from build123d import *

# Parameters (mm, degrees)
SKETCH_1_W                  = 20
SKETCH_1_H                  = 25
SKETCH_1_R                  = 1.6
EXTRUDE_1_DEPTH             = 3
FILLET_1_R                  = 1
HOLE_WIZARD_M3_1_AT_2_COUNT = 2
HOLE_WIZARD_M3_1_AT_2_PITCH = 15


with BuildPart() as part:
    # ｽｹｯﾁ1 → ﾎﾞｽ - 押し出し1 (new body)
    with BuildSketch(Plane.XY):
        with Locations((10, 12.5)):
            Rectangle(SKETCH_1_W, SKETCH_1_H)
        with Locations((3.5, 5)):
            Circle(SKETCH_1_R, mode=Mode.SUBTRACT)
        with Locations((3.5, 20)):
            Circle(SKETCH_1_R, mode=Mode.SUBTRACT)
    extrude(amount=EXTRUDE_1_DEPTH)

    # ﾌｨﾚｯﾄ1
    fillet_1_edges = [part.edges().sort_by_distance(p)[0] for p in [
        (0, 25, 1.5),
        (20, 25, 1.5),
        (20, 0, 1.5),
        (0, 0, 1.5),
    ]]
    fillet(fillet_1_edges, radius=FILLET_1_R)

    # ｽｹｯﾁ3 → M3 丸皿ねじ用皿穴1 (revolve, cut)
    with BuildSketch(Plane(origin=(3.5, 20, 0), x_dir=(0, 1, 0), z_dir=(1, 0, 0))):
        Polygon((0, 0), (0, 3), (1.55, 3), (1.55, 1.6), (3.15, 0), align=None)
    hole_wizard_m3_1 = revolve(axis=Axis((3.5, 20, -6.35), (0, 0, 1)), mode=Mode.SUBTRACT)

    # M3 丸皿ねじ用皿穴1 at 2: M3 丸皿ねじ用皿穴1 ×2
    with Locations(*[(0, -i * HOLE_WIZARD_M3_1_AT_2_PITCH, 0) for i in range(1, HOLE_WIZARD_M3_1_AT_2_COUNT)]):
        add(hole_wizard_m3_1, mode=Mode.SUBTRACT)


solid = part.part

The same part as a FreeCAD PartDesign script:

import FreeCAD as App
import Part
import Sketcher

V = App.Vector
Q = App.Units.Quantity


def edges_at(feature, points):
    """Names of the edges that pass closest to the given points."""
    edges = feature.Shape.Edges
    near = lambda p: min(range(len(edges)), key=lambda i: edges[i].distToShape(Part.Vertex(*p))[0])
    return sorted({f"Edge{near(p) + 1}" for p in points})

doc = App.newDocument("Part")
params = doc.addObject("Spreadsheet::Sheet", "Params")
for row, (alias, value) in enumerate([
    ("sketch1_diameter", "3.2 mm"),
    ("sketch1_width", "20 mm"),
    ("sketch1_height", "25 mm"),
    ("pad1_length", "3 mm"),
    ("fillet_radius", "1 mm"),
    ("sketch2_height", "3 mm"),
    ("sketch2_height2", "1.4 mm"),
    ("sketch2_width", "3.15 mm"),
    ("groove_angle", "360 deg"),
    ("linearpattern_pitch", "15 mm"),
], start=1):
    params.set(f"A{row}", alias)
    params.set(f"B{row}", "=" + value)
    params.setAlias(f"B{row}", alias)

body = doc.addObject("PartDesign::Body", "Body")

# Sketch on XY plane
sketch1 = doc.addObject("Sketcher::SketchObject", "Sketch")
body.addObject(sketch1)
sketch1.AttachmentSupport = (doc.XY_Plane, [""])
sketch1.MapMode = "FlatFace"
sketch1.addGeometry(Part.LineSegment(V(0, 25, 0), V(0, 0, 0)), False)
sketch1.addGeometry(Part.LineSegment(V(0, 0, 0), V(20, 0, 0)), False)
sketch1.addGeometry(Part.LineSegment(V(20, 0, 0), V(20, 25, 0)), False)
sketch1.addGeometry(Part.LineSegment(V(20, 25, 0), V(0, 25, 0)), False)
sketch1.addGeometry(Part.Circle(V(3.5, 5, 0), V(0, 0, 1), 1.6), False)
sketch1.addGeometry(Part.Circle(V(3.5, 20, 0), V(0, 0, 1), 1.6), False)
sketch1.addConstraint(Sketcher.Constraint("Coincident", 0, 2, 1, 1))
sketch1.addConstraint(Sketcher.Constraint("Coincident", 1, 2, 2, 1))
sketch1.addConstraint(Sketcher.Constraint("Coincident", 2, 2, 3, 1))
sketch1.addConstraint(Sketcher.Constraint("Coincident", 3, 2, 0, 1))
sketch1.addConstraint(Sketcher.Constraint("Vertical", 0))
sketch1.addConstraint(Sketcher.Constraint("Horizontal", 1))
sketch1.addConstraint(Sketcher.Constraint("Vertical", 2))
sketch1.addConstraint(Sketcher.Constraint("Horizontal", 3))
sketch1.addConstraint(Sketcher.Constraint("Coincident", 0, 2, -1, 1))
sketch1.addConstraint(Sketcher.Constraint("Equal", 4, 5))
sketch1.addConstraint(Sketcher.Constraint("Vertical", 4, 3, 5, 3))
sketch1.addConstraint(Sketcher.Constraint("Diameter", 4, Q("3.2 mm")))
sketch1.addConstraint(Sketcher.Constraint("DistanceX", 1, 1, 1, 2, Q("20 mm")))
sketch1.addConstraint(Sketcher.Constraint("DistanceY", 0, 2, 0, 1, Q("25 mm")))
sketch1.addConstraint(Sketcher.Constraint("DistanceY", -1, 1, 4, 3, Q("5 mm")))
sketch1.addConstraint(Sketcher.Constraint("DistanceY", -1, 1, 5, 3, Q("20 mm")))
sketch1.addConstraint(Sketcher.Constraint("DistanceX", -1, 1, 4, 3, Q("3.5 mm")))
sketch1.setExpression("Constraints[11]", "Params.sketch1_diameter")
sketch1.setExpression("Constraints[12]", "Params.sketch1_width")
sketch1.setExpression("Constraints[13]", "Params.sketch1_height")
pad1 = doc.addObject("PartDesign::Pad", "Pad")
body.addObject(pad1)
pad1.Profile = sketch1
pad1.setExpression("Length", "Params.pad1_length")
doc.recompute()

fillet = doc.addObject("PartDesign::Fillet", "Fillet")
body.addObject(fillet)
fillet.Base = (pad1, edges_at(pad1, [
    (0, 25, 1.5),
    (20, 25, 1.5),
    (20, 0, 1.5),
    (0, 0, 1.5),
]))
fillet.setExpression("Radius", "Params.fillet_radius")

# Sketch on YZ plane
sketch2 = doc.addObject("Sketcher::SketchObject", "Sketch001")
body.addObject(sketch2)
sketch2.AttachmentSupport = (doc.YZ_Plane, [""])
sketch2.MapMode = "FlatFace"
sketch2.AttachmentOffset = App.Placement(V(0, 0, 3.5), App.Rotation())
sketch2.addGeometry(Part.LineSegment(V(20, 3, 0), V(20, 0, 0)), False)
sketch2.addGeometry(Part.LineSegment(V(20, 0, 0), V(23.1, 0, 0)), False)
sketch2.addGeometry(Part.LineSegment(V(23.1, 0, 0), V(21.6, 1.6, 0)), False)
sketch2.addGeometry(Part.LineSegment(V(21.6, 1.6, 0), V(21.6, 3, 0)), False)
sketch2.addGeometry(Part.LineSegment(V(21.6, 3, 0), V(20, 3, 0)), False)
sketch2.addGeometry(Part.LineSegment(V(20, 0, 0), V(20, 3, 0)), True)  # axis
sketch2.addConstraint(Sketcher.Constraint("Coincident", 0, 2, 1, 1))
sketch2.addConstraint(Sketcher.Constraint("Coincident", 1, 2, 2, 1))
sketch2.addConstraint(Sketcher.Constraint("Coincident", 2, 2, 3, 1))
sketch2.addConstraint(Sketcher.Constraint("Coincident", 3, 2, 4, 1))
sketch2.addConstraint(Sketcher.Constraint("Coincident", 4, 2, 0, 1))
sketch2.addConstraint(Sketcher.Constraint("Vertical", 0))
sketch2.addConstraint(Sketcher.Constraint("Horizontal", 1))
sketch2.addConstraint(Sketcher.Constraint("Vertical", 3))
sketch2.addConstraint(Sketcher.Constraint("Horizontal", 4))
sketch2.addConstraint(Sketcher.Constraint("Vertical", 5))
sketch2.addConstraint(Sketcher.Constraint("Coincident", 5, 1, 0, 2))
sketch2.addConstraint(Sketcher.Constraint("PointOnObject", 0, 2, -1))
sketch2.addConstraint(Sketcher.Constraint("Horizontal", 3, 2, 5, 2))
sketch2.addConstraint(Sketcher.Constraint("DistanceY", 0, 2, 0, 1, Q("3 mm")))
sketch2.addConstraint(Sketcher.Constraint("Angle", 2, Q("135 deg")))
sketch2.addConstraint(Sketcher.Constraint("DistanceY", 3, 1, 3, 2, Q("1.4 mm")))
sketch2.addConstraint(Sketcher.Constraint("DistanceX", -1, 1, 0, 2, Q("20 mm")))
sketch2.addConstraint(Sketcher.Constraint("DistanceX", 1, 1, 1, 2, Q("3.15 mm")))
sketch2.setExpression("Constraints[13]", "Params.sketch2_height")
sketch2.setExpression("Constraints[15]", "Params.sketch2_height2")
sketch2.setExpression("Constraints[17]", "Params.sketch2_width")
groove = doc.addObject("PartDesign::Groove", "Groove")
body.addObject(groove)
groove.Profile = sketch2
groove.ReferenceAxis = (sketch2, ["Axis0"])
groove.setExpression("Angle", "Params.groove_angle")
doc.recompute()

linearpattern = doc.addObject("PartDesign::LinearPattern", "LinearPattern")
body.addObject(linearpattern)
linearpattern.Originals = [groove]
linearpattern.Direction = (doc.Y_Axis, [""])
linearpattern.Mode = "offset"
linearpattern.setExpression("Offset", "Params.linearpattern_pitch")
linearpattern.Occurrences = 2
linearpattern.Reversed = True
body.Tip = linearpattern

doc.recompute()
